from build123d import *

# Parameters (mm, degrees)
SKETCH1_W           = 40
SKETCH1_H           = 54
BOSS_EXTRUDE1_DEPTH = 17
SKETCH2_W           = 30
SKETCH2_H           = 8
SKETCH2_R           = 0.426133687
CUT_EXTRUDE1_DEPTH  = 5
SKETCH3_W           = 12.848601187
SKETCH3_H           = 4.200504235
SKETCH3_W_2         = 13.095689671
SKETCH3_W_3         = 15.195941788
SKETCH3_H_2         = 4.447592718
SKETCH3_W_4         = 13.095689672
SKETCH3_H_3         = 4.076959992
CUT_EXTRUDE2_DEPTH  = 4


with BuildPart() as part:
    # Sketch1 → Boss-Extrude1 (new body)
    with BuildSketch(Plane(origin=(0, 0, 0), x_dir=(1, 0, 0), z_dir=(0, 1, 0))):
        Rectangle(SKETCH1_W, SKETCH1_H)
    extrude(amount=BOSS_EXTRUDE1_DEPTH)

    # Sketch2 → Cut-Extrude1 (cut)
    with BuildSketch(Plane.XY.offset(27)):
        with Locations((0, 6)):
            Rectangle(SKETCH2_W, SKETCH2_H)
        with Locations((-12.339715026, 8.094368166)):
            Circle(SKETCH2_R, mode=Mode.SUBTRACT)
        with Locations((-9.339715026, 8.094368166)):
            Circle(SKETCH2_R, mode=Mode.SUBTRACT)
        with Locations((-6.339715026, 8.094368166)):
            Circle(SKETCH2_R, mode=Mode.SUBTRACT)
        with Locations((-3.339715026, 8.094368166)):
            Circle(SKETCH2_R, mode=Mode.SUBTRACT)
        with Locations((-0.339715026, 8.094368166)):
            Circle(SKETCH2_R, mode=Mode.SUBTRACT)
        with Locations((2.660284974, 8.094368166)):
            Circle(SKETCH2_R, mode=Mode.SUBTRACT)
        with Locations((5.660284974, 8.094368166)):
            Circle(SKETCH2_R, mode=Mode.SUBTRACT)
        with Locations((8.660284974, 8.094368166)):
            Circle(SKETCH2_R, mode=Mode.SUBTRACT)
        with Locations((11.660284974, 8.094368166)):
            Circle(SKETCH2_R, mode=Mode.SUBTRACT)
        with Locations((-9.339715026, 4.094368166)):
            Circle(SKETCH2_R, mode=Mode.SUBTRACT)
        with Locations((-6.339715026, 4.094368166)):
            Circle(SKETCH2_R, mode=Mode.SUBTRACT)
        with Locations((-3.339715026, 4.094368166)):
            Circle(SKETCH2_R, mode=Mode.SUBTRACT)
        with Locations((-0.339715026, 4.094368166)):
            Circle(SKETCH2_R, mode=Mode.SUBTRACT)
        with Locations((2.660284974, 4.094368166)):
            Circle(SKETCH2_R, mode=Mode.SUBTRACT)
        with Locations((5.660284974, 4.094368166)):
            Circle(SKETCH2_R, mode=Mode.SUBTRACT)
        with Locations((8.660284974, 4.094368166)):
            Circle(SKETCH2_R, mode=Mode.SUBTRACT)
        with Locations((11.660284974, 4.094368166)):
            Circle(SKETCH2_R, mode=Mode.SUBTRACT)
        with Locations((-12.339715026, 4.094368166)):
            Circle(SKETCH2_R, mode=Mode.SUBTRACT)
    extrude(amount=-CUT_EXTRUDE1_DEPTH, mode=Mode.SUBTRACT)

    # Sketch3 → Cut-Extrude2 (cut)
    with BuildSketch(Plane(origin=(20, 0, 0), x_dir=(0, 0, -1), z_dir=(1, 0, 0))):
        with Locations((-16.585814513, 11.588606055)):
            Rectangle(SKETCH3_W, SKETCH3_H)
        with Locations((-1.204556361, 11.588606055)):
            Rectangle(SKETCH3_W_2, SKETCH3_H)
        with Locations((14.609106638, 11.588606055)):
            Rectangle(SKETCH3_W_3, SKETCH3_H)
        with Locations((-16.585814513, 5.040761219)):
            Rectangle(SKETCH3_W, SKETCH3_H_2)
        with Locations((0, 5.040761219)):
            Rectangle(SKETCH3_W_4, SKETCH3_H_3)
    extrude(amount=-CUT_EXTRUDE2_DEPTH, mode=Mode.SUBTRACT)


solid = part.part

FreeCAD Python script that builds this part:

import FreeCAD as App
import Part
import Sketcher
from FreeCAD import Vector


def add_polygon(sketch, points):
    """Adds a closed chain of lines whose ends are joined by coincident constraints."""
    first, n = sketch.GeometryCount, len(points)
    for a, b in zip(points, points[1:] + points[:1]):
        sketch.addGeometry(Part.LineSegment(App.Vector(*a, 0), App.Vector(*b, 0)), False)
    for i in range(n):
        sketch.addConstraint(Sketcher.Constraint("Coincident", first + i, 2, first + (i + 1) % n, 1))

doc = App.newDocument("Part")
params = doc.addObject("Spreadsheet::Sheet", "Params")
for row, (alias, value) in enumerate([
    ("sketch1_width", "40 mm"),
    ("sketch1_height", "54 mm"),
    ("pad1_length", "17 mm"),
    ("sketch2_width", "30 mm"),
    ("sketch2_height", "8 mm"),
    ("pocket1_length", "5 mm"),
    ("pocket2_length", "4 mm"),
], start=1):
    params.set(f"A{row}", alias)
    params.set(f"B{row}", "=" + value)
    params.setAlias(f"B{row}", alias)

body = doc.addObject("PartDesign::Body", "Body")

sketch1 = body.newObject("Sketcher::SketchObject", "Sketch")
sketch1.AttachmentSupport = (doc.getObject("XZ_Plane"), [""])
sketch1.MapMode = "FlatFace"
add_polygon(sketch1, [(-20, -27), (-20, 27), (20, 27), (20, -27)])
sketch1.addConstraint(Sketcher.Constraint("Vertical", 0))
sketch1.addConstraint(Sketcher.Constraint("Horizontal", 1))
sketch1.addConstraint(Sketcher.Constraint("Vertical", 2))
sketch1.addConstraint(Sketcher.Constraint("Horizontal", 3))
sketch1.addConstraint(Sketcher.Constraint("Symmetric", 0, 2, 2, 2, -1, 1))
sketch1.addConstraint(Sketcher.Constraint("DistanceX", 1, 1, 1, 2, 40.0))
sketch1.addConstraint(Sketcher.Constraint("DistanceY", 0, 1, 0, 2, 54.0))
sketch1.setExpression("Constraints[9]", "Params.sketch1_width")
sketch1.setExpression("Constraints[10]", "Params.sketch1_height")
pad1 = body.newObject("PartDesign::Pad", "Pad")
pad1.Profile = sketch1
pad1.setExpression("Length", "Params.pad1_length")
pad1.Reversed = True

sketch2 = body.newObject("Sketcher::SketchObject", "Sketch001")
sketch2.AttachmentSupport = (doc.getObject("XY_Plane"), [""])
sketch2.MapMode = "FlatFace"
sketch2.AttachmentOffset = App.Placement(Vector(0, 0, 27), App.Rotation())
add_polygon(sketch2, [(-15, 10), (-15, 2), (15, 2), (15, 10)])
sketch2.addGeometry(Part.Circle(Vector(-12.34, 4.09, 0), Vector(0, 0, 1), 0.43), False)
sketch2.addGeometry(Part.Circle(Vector(-9.34, 4.09, 0), Vector(0, 0, 1), 0.43), False)
sketch2.addGeometry(Part.Circle(Vector(-6.34, 4.09, 0), Vector(0, 0, 1), 0.43), False)
sketch2.addGeometry(Part.Circle(Vector(-3.34, 4.09, 0), Vector(0, 0, 1), 0.43), False)
sketch2.addGeometry(Part.Circle(Vector(-0.34, 4.09, 0), Vector(0, 0, 1), 0.43), False)
sketch2.addGeometry(Part.Circle(Vector(2.66, 4.09, 0), Vector(0, 0, 1), 0.43), False)
sketch2.addGeometry(Part.Circle(Vector(5.66, 4.09, 0), Vector(0, 0, 1), 0.43), False)
sketch2.addGeometry(Part.Circle(Vector(8.66, 4.09, 0), Vector(0, 0, 1), 0.43), False)
sketch2.addGeometry(Part.Circle(Vector(11.66, 4.09, 0), Vector(0, 0, 1), 0.43), False)
sketch2.addGeometry(Part.Circle(Vector(-12.34, 8.09, 0), Vector(0, 0, 1), 0.43), False)
sketch2.addGeometry(Part.Circle(Vector(-9.34, 8.09, 0), Vector(0, 0, 1), 0.43), False)
sketch2.addGeometry(Part.Circle(Vector(-6.34, 8.09, 0), Vector(0, 0, 1), 0.43), False)
sketch2.addGeometry(Part.Circle(Vector(-3.34, 8.09, 0), Vector(0, 0, 1), 0.43), False)
sketch2.addGeometry(Part.Circle(Vector(-0.34, 8.09, 0), Vector(0, 0, 1), 0.43), False)
sketch2.addGeometry(Part.Circle(Vector(2.66, 8.09, 0), Vector(0, 0, 1), 0.43), False)
sketch2.addGeometry(Part.Circle(Vector(5.66, 8.09, 0), Vector(0, 0, 1), 0.43), False)
sketch2.addGeometry(Part.Circle(Vector(8.66, 8.09, 0), Vector(0, 0, 1), 0.43), False)
sketch2.addGeometry(Part.Circle(Vector(11.66, 8.09, 0), Vector(0, 0, 1), 0.43), False)
sketch2.addConstraint(Sketcher.Constraint("Vertical", 0))
sketch2.addConstraint(Sketcher.Constraint("Horizontal", 1))
sketch2.addConstraint(Sketcher.Constraint("Vertical", 2))
sketch2.addConstraint(Sketcher.Constraint("Horizontal", 3))
sketch2.addConstraint(Sketcher.Constraint("Equal", 4, 5))
sketch2.addConstraint(Sketcher.Constraint("Equal", 5, 6))
sketch2.addConstraint(Sketcher.Constraint("Equal", 6, 7))
sketch2.addConstraint(Sketcher.Constraint("Equal", 7, 8))
sketch2.addConstraint(Sketcher.Constraint("Equal", 8, 9))
sketch2.addConstraint(Sketcher.Constraint("Equal", 9, 10))
sketch2.addConstraint(Sketcher.Constraint("Equal", 10, 11))
sketch2.addConstraint(Sketcher.Constraint("Equal", 11, 12))
sketch2.addConstraint(Sketcher.Constraint("Equal", 12, 13))
sketch2.addConstraint(Sketcher.Constraint("Equal", 13, 14))
sketch2.addConstraint(Sketcher.Constraint("Equal", 14, 15))
sketch2.addConstraint(Sketcher.Constraint("Equal", 15, 16))
sketch2.addConstraint(Sketcher.Constraint("Equal", 16, 17))
sketch2.addConstraint(Sketcher.Constraint("Equal", 17, 18))
sketch2.addConstraint(Sketcher.Constraint("Equal", 18, 19))
sketch2.addConstraint(Sketcher.Constraint("Equal", 19, 20))
sketch2.addConstraint(Sketcher.Constraint("Equal", 20, 21))
sketch2.addConstraint(Sketcher.Constraint("Horizontal", 4, 3, 5, 3))
sketch2.addConstraint(Sketcher.Constraint("Horizontal", 5, 3, 6, 3))
sketch2.addConstraint(Sketcher.Constraint("Horizontal", 6, 3, 7, 3))
sketch2.addConstraint(Sketcher.Constraint("Horizontal", 7, 3, 8, 3))
sketch2.addConstraint(Sketcher.Constraint("Horizontal", 8, 3, 9, 3))
sketch2.addConstraint(Sketcher.Constraint("Horizontal", 9, 3, 10, 3))
sketch2.addConstraint(Sketcher.Constraint("Horizontal", 10, 3, 11, 3))
sketch2.addConstraint(Sketcher.Constraint("Horizontal", 11, 3, 12, 3))
sketch2.addConstraint(Sketcher.Constraint("Horizontal", 13, 3, 14, 3))
sketch2.addConstraint(Sketcher.Constraint("Horizontal", 14, 3, 15, 3))
sketch2.addConstraint(Sketcher.Constraint("Horizontal", 15, 3, 16, 3))
sketch2.addConstraint(Sketcher.Constraint("Horizontal", 16, 3, 17, 3))
sketch2.addConstraint(Sketcher.Constraint("Horizontal", 17, 3, 18, 3))
sketch2.addConstraint(Sketcher.Constraint("Horizontal", 18, 3, 19, 3))
sketch2.addConstraint(Sketcher.Constraint("Horizontal", 19, 3, 20, 3))
sketch2.addConstraint(Sketcher.Constraint("Horizontal", 20, 3, 21, 3))
sketch2.addConstraint(Sketcher.Constraint("Vertical", 4, 3, 13, 3))
sketch2.addConstraint(Sketcher.Constraint("Vertical", 5, 3, 14, 3))
sketch2.addConstraint(Sketcher.Constraint("Vertical", 6, 3, 15, 3))
sketch2.addConstraint(Sketcher.Constraint("Vertical", 7, 3, 16, 3))
sketch2.addConstraint(Sketcher.Constraint("Vertical", 8, 3, 17, 3))
sketch2.addConstraint(Sketcher.Constraint("Vertical", 9, 3, 18, 3))
sketch2.addConstraint(Sketcher.Constraint("Vertical", 10, 3, 19, 3))
sketch2.addConstraint(Sketcher.Constraint("Vertical", 11, 3, 20, 3))
sketch2.addConstraint(Sketcher.Constraint("Vertical", 12, 3, 21, 3))
sketch2.addConstraint(Sketcher.Constraint("DistanceX", 1, 1, 1, 2, 30.0))
sketch2.addConstraint(Sketcher.Constraint("DistanceY", 0, 2, 0, 1, 8.0))
sketch2.addConstraint(Sketcher.Constraint("DistanceX", 0, 2, -1, 1, 15.0))
sketch2.addConstraint(Sketcher.Constraint("DistanceY", -1, 1, 0, 2, 2.0))
sketch2.addConstraint(Sketcher.Constraint("DistanceX", 4, 3, 5, 3, 3.0))
sketch2.addConstraint(Sketcher.Constraint("DistanceX", 5, 3, 6, 3, 3.0))
sketch2.addConstraint(Sketcher.Constraint("DistanceX", 6, 3, 7, 3, 3.0))
sketch2.addConstraint(Sketcher.Constraint("DistanceX", 7, 3, 8, 3, 3.0))
sketch2.addConstraint(Sketcher.Constraint("DistanceX", 8, 3, 9, 3, 3.0))
sketch2.addConstraint(Sketcher.Constraint("DistanceX", 9, 3, 10, 3, 3.0))
sketch2.addConstraint(Sketcher.Constraint("DistanceX", 10, 3, 11, 3, 3.0))
sketch2.addConstraint(Sketcher.Constraint("DistanceX", 11, 3, 12, 3, 3.0))
sketch2.addConstraint(Sketcher.Constraint("DistanceY", 4, 3, 13, 3, 4.0))
sketch2.addConstraint(Sketcher.Constraint("Diameter", 4, 0.852267))
sketch2.addConstraint(Sketcher.Constraint("DistanceY", -1, 1, 4, 3, 4.094368))
sketch2.addConstraint(Sketcher.Constraint("DistanceX", 4, 3, -1, 1, 12.339715))
sketch2.setExpression("Constraints[50]", "Params.sketch2_width")
sketch2.setExpression("Constraints[51]", "Params.sketch2_height")
pocket1 = body.newObject("PartDesign::Pocket", "Pocket")
pocket1.Profile = sketch2
pocket1.setExpression("Length", "Params.pocket1_length")

sketch3 = body.newObject("Sketcher::SketchObject", "Sketch002")
sketch3.AttachmentSupport = (doc.getObject("YZ_Plane"), [""])
sketch3.MapMode = "FlatFace"
sketch3.AttachmentOffset = App.Placement(Vector(0, 0, 20), App.Rotation())
add_polygon(sketch3, [(13.7, 23), (9.5, 23), (9.5, 10.2), (13.7, 10.2)])
add_polygon(sketch3, [(13.7, 7.8), (9.5, 7.8), (9.5, -5.3), (13.7, -5.3)])
add_polygon(sketch3, [(13.7, -7), (9.5, -7), (9.5, -22.2), (13.7, -22.2)])
add_polygon(sketch3, [(7.3, 23), (2.8, 23), (2.8, 10.2), (7.3, 10.2)])
add_polygon(sketch3, [(7.1, 6.5), (3, 6.5), (3, -6.5), (7.1, -6.5)])
sketch3.addConstraint(Sketcher.Constraint("Horizontal", 0))
sketch3.addConstraint(Sketcher.Constraint("Vertical", 1))
sketch3.addConstraint(Sketcher.Constraint("Horizontal", 2))
sketch3.addConstraint(Sketcher.Constraint("Vertical", 3))
sketch3.addConstraint(Sketcher.Constraint("Horizontal", 4))
sketch3.addConstraint(Sketcher.Constraint("Vertical", 5))
sketch3.addConstraint(Sketcher.Constraint("Horizontal", 6))
sketch3.addConstraint(Sketcher.Constraint("Vertical", 7))
sketch3.addConstraint(Sketcher.Constraint("Horizontal", 8))
sketch3.addConstraint(Sketcher.Constraint("Vertical", 9))
sketch3.addConstraint(Sketcher.Constraint("Horizontal", 10))
sketch3.addConstraint(Sketcher.Constraint("Vertical", 11))
sketch3.addConstraint(Sketcher.Constraint("Horizontal", 12))
sketch3.addConstraint(Sketcher.Constraint("Vertical", 13))
sketch3.addConstraint(Sketcher.Constraint("Horizontal", 14))
sketch3.addConstraint(Sketcher.Constraint("Vertical", 15))
sketch3.addConstraint(Sketcher.Constraint("Horizontal", 16))
sketch3.addConstraint(Sketcher.Constraint("Vertical", 17))
sketch3.addConstraint(Sketcher.Constraint("Horizontal", 18))
sketch3.addConstraint(Sketcher.Constraint("Vertical", 19))
sketch3.addConstraint(Sketcher.Constraint("Horizontal", 3, 2, 12, 2))
sketch3.addConstraint(Sketcher.Constraint("Horizontal", 2, 2, 13, 2))
sketch3.addConstraint(Sketcher.Constraint("Vertical", 1, 2, 4, 2))
sketch3.addConstraint(Sketcher.Constraint("Vertical", 3, 2, 6, 2))
sketch3.addConstraint(Sketcher.Constraint("Vertical", 5, 2, 8, 2))
sketch3.addConstraint(Sketcher.Constraint("Vertical", 7, 2, 10, 2))
sketch3.addConstraint(Sketcher.Constraint("Equal", 7, 17))
sketch3.addConstraint(Sketcher.Constraint("DistanceY", 1, 2, 1, 1, 12.848601))
sketch3.addConstraint(Sketcher.Constraint("DistanceX", 16, 2, 16, 1, 4.07696))
sketch3.addConstraint(Sketcher.Constraint("DistanceY", 5, 2, 5, 1, 13.09569))
sketch3.addConstraint(Sketcher.Constraint("DistanceY", 9, 2, 9, 1, 15.195942))
sketch3.addConstraint(Sketcher.Constraint("DistanceY", -1, 1, 4, 2, 7.752401))
sketch3.addConstraint(Sketcher.Constraint("DistanceX", 14, 2, 2, 2, 6.424301))
sketch3.addConstraint(Sketcher.Constraint("DistanceX", 0, 2, 0, 1, 4.200504))
sketch3.addConstraint(Sketcher.Constraint("DistanceX", 12, 2, 12, 1, 4.447593))
sketch3.addConstraint(Sketcher.Constraint("DistanceX", -1, 1, 2, 2, 13.688858))
sketch3.addConstraint(Sketcher.Constraint("DistanceX", -1, 1, 16, 2, 3.002281))
sketch3.addConstraint(Sketcher.Constraint("DistanceY", 8, 2, 1, 2, 17.17265))
sketch3.addConstraint(Sketcher.Constraint("DistanceY", 9, 2, 5, 2, 16.863789))
sketch3.addConstraint(Sketcher.Constraint("DistanceY", 16, 2, 13, 2, 3.613669))
pocket2 = body.newObject("PartDesign::Pocket", "Pocket001")
pocket2.Profile = sketch3
pocket2.setExpression("Length", "Params.pocket2_length")

doc.recompute()
